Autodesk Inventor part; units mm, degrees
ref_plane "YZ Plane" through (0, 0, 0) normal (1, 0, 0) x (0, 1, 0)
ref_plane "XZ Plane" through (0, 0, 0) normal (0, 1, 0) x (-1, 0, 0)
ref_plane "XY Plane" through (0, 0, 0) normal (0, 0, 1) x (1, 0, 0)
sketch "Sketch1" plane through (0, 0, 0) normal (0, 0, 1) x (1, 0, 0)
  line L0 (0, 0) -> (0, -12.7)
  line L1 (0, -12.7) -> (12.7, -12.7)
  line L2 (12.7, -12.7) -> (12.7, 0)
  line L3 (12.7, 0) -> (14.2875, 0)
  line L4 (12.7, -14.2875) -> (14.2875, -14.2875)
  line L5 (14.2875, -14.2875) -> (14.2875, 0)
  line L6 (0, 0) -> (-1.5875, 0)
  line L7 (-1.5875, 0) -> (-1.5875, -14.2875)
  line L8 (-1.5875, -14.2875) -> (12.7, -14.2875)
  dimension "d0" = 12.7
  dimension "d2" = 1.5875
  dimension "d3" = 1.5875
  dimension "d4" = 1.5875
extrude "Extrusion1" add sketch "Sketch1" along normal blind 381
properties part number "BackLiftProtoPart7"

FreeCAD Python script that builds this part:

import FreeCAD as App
import Part
import Sketcher
Q = App.Units.Quantity

doc = App.newDocument("Part")
body = doc.addObject("PartDesign::Body", "Body")

sketch1 = body.newObject("Sketcher::SketchObject", "Sketch")
sketch1.AttachmentSupport = (doc.getObject("XY_Plane"), [""])
sketch1.MapMode = "FlatFace"
sketch1.addGeometry([
    Part.LineSegment(App.Vector(0, -12.7, 0), App.Vector(0, 0, 0)),
    Part.LineSegment(App.Vector(0, 0, 0), App.Vector(-1.5875, 0, 0)),
    Part.LineSegment(App.Vector(-1.5875, 0, 0), App.Vector(-1.5875, -14.2875, 0)),
    Part.LineSegment(App.Vector(-1.5875, -14.2875, 0), App.Vector(14.2875, -14.2875, 0)),
    Part.LineSegment(App.Vector(14.2875, -14.2875, 0), App.Vector(14.2875, 0, 0)),
    Part.LineSegment(App.Vector(14.2875, 0, 0), App.Vector(12.7, 0, 0)),
    Part.LineSegment(App.Vector(12.7, 0, 0), App.Vector(12.7, -12.7, 0)),
    Part.LineSegment(App.Vector(12.7, -12.7, 0), App.Vector(0, -12.7, 0)),
], False)
sketch1.addConstraint([
    Sketcher.Constraint("Coincident", 0, 2, 1, 1),
    Sketcher.Constraint("Coincident", 1, 2, 2, 1),
    Sketcher.Constraint("Coincident", 2, 2, 3, 1),
    Sketcher.Constraint("Coincident", 3, 2, 4, 1),
    Sketcher.Constraint("Coincident", 4, 2, 5, 1),
    Sketcher.Constraint("Coincident", 5, 2, 6, 1),
    Sketcher.Constraint("Coincident", 6, 2, 7, 1),
    Sketcher.Constraint("Coincident", 7, 2, 0, 1),
    Sketcher.Constraint("Vertical", 0),
    Sketcher.Constraint("Horizontal", 1),
    Sketcher.Constraint("Vertical", 2),
    Sketcher.Constraint("Horizontal", 3),
    Sketcher.Constraint("Vertical", 4),
    Sketcher.Constraint("Horizontal", 5),
    Sketcher.Constraint("Vertical", 6),
    Sketcher.Constraint("Horizontal", 7),
    Sketcher.Constraint("Coincident", 0, 2, -1, 1),
    Sketcher.Constraint("PointOnObject", 4, 2, -1),
    Sketcher.Constraint("Equal", 1, 5),
    Sketcher.Constraint("Equal", 7, 0),
    Sketcher.Constraint("DistanceX", 7, 2, 7, 1, Q("0.5 in")),
    Sketcher.Constraint("DistanceX", 1, 2, 1, 1, Q("0.0625 in")),
    Sketcher.Constraint("DistanceY", 3, 2, 6, 2, Q("0.0625 in")),
])
pad1 = body.newObject("PartDesign::Pad", "Pad")
pad1.Profile = sketch1
pad1.Length = Q("15 in")

doc.recompute()
